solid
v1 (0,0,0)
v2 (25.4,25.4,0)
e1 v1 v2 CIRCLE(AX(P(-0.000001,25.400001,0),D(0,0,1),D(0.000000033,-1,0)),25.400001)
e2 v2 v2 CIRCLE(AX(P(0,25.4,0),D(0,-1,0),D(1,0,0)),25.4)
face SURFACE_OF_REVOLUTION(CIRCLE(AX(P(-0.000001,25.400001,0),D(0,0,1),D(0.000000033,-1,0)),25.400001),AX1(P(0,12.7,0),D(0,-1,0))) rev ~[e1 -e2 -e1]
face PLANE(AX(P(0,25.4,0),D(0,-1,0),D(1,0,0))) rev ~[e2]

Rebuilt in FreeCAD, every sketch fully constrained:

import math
import FreeCAD as App
import Part
import Sketcher
Q = App.Units.Quantity

doc = App.newDocument("Part")
body = doc.addObject("PartDesign::Body", "Body")

# Sketch on XY plane
sketch1 = body.newObject("Sketcher::SketchObject", "Sketch")
sketch1.AttachmentSupport = (doc.getObject("XY_Plane"), [""])
sketch1.MapMode = "FlatFace"
sketch1.addGeometry(Part.LineSegment(App.Vector(0, 25, 0), App.Vector(0, 0, 0)), False)
sketch1.addGeometry(Part.ArcOfCircle(Part.Circle(App.Vector(0, 25, 0), App.Vector(0, 0, 1), 25), math.radians(-90), math.radians(0)), False)
sketch1.addGeometry(Part.LineSegment(App.Vector(25, 25, 0), App.Vector(0, 25, 0)), False)
sketch1.addConstraint(Sketcher.Constraint("Coincident", 0, 2, 1, 1))
sketch1.addConstraint(Sketcher.Constraint("Coincident", 1, 2, 2, 1))
sketch1.addConstraint(Sketcher.Constraint("Coincident", 2, 2, 0, 1))
sketch1.addConstraint(Sketcher.Constraint("Vertical", 0))
sketch1.addConstraint(Sketcher.Constraint("Horizontal", 2))
sketch1.addConstraint(Sketcher.Constraint("Coincident", 0, 2, -1, 1))
sketch1.addConstraint(Sketcher.Constraint("Coincident", 2, 2, 1, 3))
sketch1.addConstraint(Sketcher.Constraint("Radius", 1, Q("1 in")))
revolution = body.newObject("PartDesign::Revolution", "Revolution")
revolution.Profile = sketch1
revolution.ReferenceAxis = (sketch1, ["V_Axis"])
revolution.Angle = 360

doc.recompute()
